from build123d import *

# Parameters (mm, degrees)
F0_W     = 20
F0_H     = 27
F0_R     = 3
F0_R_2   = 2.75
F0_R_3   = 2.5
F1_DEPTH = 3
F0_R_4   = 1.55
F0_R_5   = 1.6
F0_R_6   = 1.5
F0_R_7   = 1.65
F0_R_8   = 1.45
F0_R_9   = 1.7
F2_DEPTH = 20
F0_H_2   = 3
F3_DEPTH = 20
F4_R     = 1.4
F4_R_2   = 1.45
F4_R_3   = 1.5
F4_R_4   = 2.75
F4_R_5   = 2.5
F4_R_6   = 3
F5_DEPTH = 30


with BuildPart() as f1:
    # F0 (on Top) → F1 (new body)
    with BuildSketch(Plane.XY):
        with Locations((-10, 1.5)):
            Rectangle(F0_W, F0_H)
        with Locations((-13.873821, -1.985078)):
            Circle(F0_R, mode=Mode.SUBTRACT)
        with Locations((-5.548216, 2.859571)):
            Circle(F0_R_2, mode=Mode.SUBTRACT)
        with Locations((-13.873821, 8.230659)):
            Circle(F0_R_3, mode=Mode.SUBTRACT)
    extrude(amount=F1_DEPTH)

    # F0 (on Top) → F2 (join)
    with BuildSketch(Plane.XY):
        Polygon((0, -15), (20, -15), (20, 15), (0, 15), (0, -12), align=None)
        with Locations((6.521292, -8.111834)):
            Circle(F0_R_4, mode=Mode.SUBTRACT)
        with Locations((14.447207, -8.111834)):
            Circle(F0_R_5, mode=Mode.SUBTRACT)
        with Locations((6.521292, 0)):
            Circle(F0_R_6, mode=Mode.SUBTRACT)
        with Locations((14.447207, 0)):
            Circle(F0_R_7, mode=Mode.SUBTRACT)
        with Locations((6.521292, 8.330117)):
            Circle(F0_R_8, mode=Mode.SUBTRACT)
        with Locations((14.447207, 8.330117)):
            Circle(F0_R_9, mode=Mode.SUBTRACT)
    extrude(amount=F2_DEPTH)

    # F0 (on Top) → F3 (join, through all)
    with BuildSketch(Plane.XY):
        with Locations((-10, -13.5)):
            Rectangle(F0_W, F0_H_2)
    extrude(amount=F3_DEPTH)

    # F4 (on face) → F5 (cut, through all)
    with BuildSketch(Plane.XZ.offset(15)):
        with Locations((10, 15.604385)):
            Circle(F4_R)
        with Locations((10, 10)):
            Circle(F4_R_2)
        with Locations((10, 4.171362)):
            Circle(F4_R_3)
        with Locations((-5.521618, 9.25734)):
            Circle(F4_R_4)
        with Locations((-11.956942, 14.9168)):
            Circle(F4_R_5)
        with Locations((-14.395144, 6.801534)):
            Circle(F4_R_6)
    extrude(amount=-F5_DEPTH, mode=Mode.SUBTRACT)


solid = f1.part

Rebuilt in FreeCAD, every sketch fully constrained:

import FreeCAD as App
import Part
import Sketcher


def add_polygon(sketch, points):
    """Adds a closed chain of lines whose ends are joined by coincident constraints."""
    first, n = sketch.GeometryCount, len(points)
    for a, b in zip(points, points[1:] + points[:1]):
        sketch.addGeometry(Part.LineSegment(App.Vector(*a, 0), App.Vector(*b, 0)), False)
    for i in range(n):
        sketch.addConstraint(Sketcher.Constraint("Coincident", first + i, 2, first + (i + 1) % n, 1))

doc = App.newDocument("Part")
params = doc.addObject("Spreadsheet::Sheet", "Params")
for row, (alias, value) in enumerate([
    ("sketch1_diameter", "6 mm"),
    ("sketch1_diameter2", "5 mm"),
    ("sketch1_diameter3", "5.5 mm"),
    ("sketch1_width", "20 mm"),
    ("sketch1_height", "27 mm"),
    ("pad1_length", "3 mm"),
    ("sketch2_diameter", "3 mm"),
    ("sketch2_diameter2", "3.1 mm"),
    ("sketch2_diameter3", "3.2 mm"),
    ("sketch2_diameter4", "3.3 mm"),
    ("sketch2_diameter5", "2.9 mm"),
    ("pad2_length", "20 mm"),
    ("sketch3_width", "20 mm"),
    ("sketch3_height", "3 mm"),
    ("pad3_length", "20 mm"),
    ("sketch4_diameter", "3 mm"),
    ("sketch4_diameter2", "5 mm"),
    ("sketch4_diameter3", "6 mm"),
    ("sketch4_diameter4", "2.8 mm"),
    ("sketch4_diameter5", "2.9 mm"),
], start=1):
    params.set(f"A{row}", alias)
    params.set(f"B{row}", "=" + value)
    params.setAlias(f"B{row}", alias)

body = doc.addObject("PartDesign::Body", "Body")

# Sketch on XY plane
sketch1 = body.newObject("Sketcher::SketchObject", "Sketch")
sketch1.AttachmentSupport = (doc.getObject("XY_Plane"), [""])
sketch1.MapMode = "FlatFace"
add_polygon(sketch1, [(-20, 15), (-20, -12), (0, -12), (0, 15)])  # lines 0-3
sketch1.addGeometry(Part.Circle(App.Vector(-13.9, -2, 0), App.Vector(0, 0, 1), 3), False)  # 4
sketch1.addGeometry(Part.Circle(App.Vector(-5.5, 2.9, 0), App.Vector(0, 0, 1), 2.8), False)  # 5
sketch1.addGeometry(Part.Circle(App.Vector(-13.9, 8.2, 0), App.Vector(0, 0, 1), 2.5), False)  # 6
sketch1.addConstraint(Sketcher.Constraint("Vertical", 0))
sketch1.addConstraint(Sketcher.Constraint("Horizontal", 1))
sketch1.addConstraint(Sketcher.Constraint("Vertical", 2))
sketch1.addConstraint(Sketcher.Constraint("Horizontal", 3))
sketch1.addConstraint(Sketcher.Constraint("PointOnObject", 1, 2, -2))
sketch1.addConstraint(Sketcher.Constraint("Vertical", 4, 3, 6, 3))
sketch1.addConstraint(Sketcher.Constraint("Diameter", 4, 6.0))
sketch1.addConstraint(Sketcher.Constraint("Diameter", 6, 5.0))
sketch1.addConstraint(Sketcher.Constraint("Diameter", 5, 5.5))
sketch1.addConstraint(Sketcher.Constraint("DistanceX", 1, 1, 1, 2, 20.0))
sketch1.addConstraint(Sketcher.Constraint("DistanceY", 0, 2, 0, 1, 27.0))
sketch1.addConstraint(Sketcher.Constraint("DistanceY", 0, 2, -1, 1, 12.0))
sketch1.addConstraint(Sketcher.Constraint("DistanceX", 4, 3, -1, 1, 13.873821))
sketch1.addConstraint(Sketcher.Constraint("DistanceY", -1, 1, 5, 3, 2.859571))
sketch1.addConstraint(Sketcher.Constraint("DistanceY", -1, 1, 6, 3, 8.230659))
sketch1.addConstraint(Sketcher.Constraint("DistanceY", 4, 3, 5, 3, 4.844649))
sketch1.addConstraint(Sketcher.Constraint("DistanceX", 5, 3, -1, 1, 5.548216))
sketch1.setExpression("Constraints[10]", "Params.sketch1_diameter")
sketch1.setExpression("Constraints[11]", "Params.sketch1_diameter2")
sketch1.setExpression("Constraints[12]", "Params.sketch1_diameter3")
sketch1.setExpression("Constraints[13]", "Params.sketch1_width")
sketch1.setExpression("Constraints[14]", "Params.sketch1_height")
pad1 = body.newObject("PartDesign::Pad", "Pad")
pad1.Profile = sketch1
pad1.setExpression("Length", "Params.pad1_length")

# Sketch on XY plane
sketch2 = body.newObject("Sketcher::SketchObject", "Sketch001")
sketch2.AttachmentSupport = (doc.getObject("XY_Plane"), [""])
sketch2.MapMode = "FlatFace"
add_polygon(sketch2, [(0, -15), (20, -15), (20, 15), (0, 15)])  # lines 0-3
sketch2.addGeometry(Part.Circle(App.Vector(6.5, -8.1, 0), App.Vector(0, 0, 1), 1.6), False)  # 4
sketch2.addGeometry(Part.Circle(App.Vector(6.5, 0, 0), App.Vector(0, 0, 1), 1.5), False)  # 5
sketch2.addGeometry(Part.Circle(App.Vector(14.4, -8.1, 0), App.Vector(0, 0, 1), 1.6), False)  # 6
sketch2.addGeometry(Part.Circle(App.Vector(14.4, 0, 0), App.Vector(0, 0, 1), 1.6), False)  # 7
sketch2.addGeometry(Part.Circle(App.Vector(6.5, 8.3, 0), App.Vector(0, 0, 1), 1.4), False)  # 8
sketch2.addGeometry(Part.Circle(App.Vector(14.4, 8.3, 0), App.Vector(0, 0, 1), 1.7), False)  # 9
sketch2.addConstraint(Sketcher.Constraint("Horizontal", 0))
sketch2.addConstraint(Sketcher.Constraint("Vertical", 1))
sketch2.addConstraint(Sketcher.Constraint("Horizontal", 2))
sketch2.addConstraint(Sketcher.Constraint("Vertical", 3))
sketch2.addConstraint(Sketcher.Constraint("Symmetric", 2, 2, 3, 2, -1, 1))
sketch2.addConstraint(Sketcher.Constraint("PointOnObject", 5, 3, -1))
sketch2.addConstraint(Sketcher.Constraint("PointOnObject", 7, 3, -1))
sketch2.addConstraint(Sketcher.Constraint("Horizontal", 4, 3, 6, 3))
sketch2.addConstraint(Sketcher.Constraint("Horizontal", 8, 3, 9, 3))
sketch2.addConstraint(Sketcher.Constraint("Vertical", 4, 3, 5, 3))
sketch2.addConstraint(Sketcher.Constraint("Vertical", 6, 3, 7, 3))
sketch2.addConstraint(Sketcher.Constraint("Vertical", 5, 3, 8, 3))
sketch2.addConstraint(Sketcher.Constraint("Vertical", 7, 3, 9, 3))
sketch2.addConstraint(Sketcher.Constraint("Diameter", 5, 3.0))
sketch2.addConstraint(Sketcher.Constraint("Diameter", 4, 3.1))
sketch2.addConstraint(Sketcher.Constraint("Diameter", 6, 3.2))
sketch2.addConstraint(Sketcher.Constraint("Diameter", 7, 3.3))
sketch2.addConstraint(Sketcher.Constraint("Diameter", 8, 2.9))
sketch2.addConstraint(Sketcher.Constraint("Diameter", 9, 3.4))
sketch2.addConstraint(Sketcher.Constraint("DistanceX", 0, 1, 0, 2, 20.0))
sketch2.addConstraint(Sketcher.Constraint("DistanceY", 1, 1, 1, 2, 30.0))
sketch2.addConstraint(Sketcher.Constraint("DistanceY", 4, 3, 8, 3, 16.441951))
sketch2.addConstraint(Sketcher.Constraint("DistanceX", 4, 3, 0, 2, 13.478708))
sketch2.addConstraint(Sketcher.Constraint("DistanceY", 4, 3, -1, 1, 8.111834))
sketch2.addConstraint(Sketcher.Constraint("DistanceX", -1, 1, 6, 3, 14.447207))
sketch2.setExpression("Constraints[17]", "Params.sketch2_diameter")
sketch2.setExpression("Constraints[18]", "Params.sketch2_diameter2")
sketch2.setExpression("Constraints[19]", "Params.sketch2_diameter3")
sketch2.setExpression("Constraints[20]", "Params.sketch2_diameter4")
sketch2.setExpression("Constraints[21]", "Params.sketch2_diameter5")
pad2 = body.newObject("PartDesign::Pad", "Pad001")
pad2.Profile = sketch2
pad2.setExpression("Length", "Params.pad2_length")

# Sketch on XY plane
sketch3 = body.newObject("Sketcher::SketchObject", "Sketch002")
sketch3.AttachmentSupport = (doc.getObject("XY_Plane"), [""])
sketch3.MapMode = "FlatFace"
add_polygon(sketch3, [(-20, -12), (-20, -15), (0, -15), (0, -12)])  # lines 0-3
sketch3.addConstraint(Sketcher.Constraint("Vertical", 0))
sketch3.addConstraint(Sketcher.Constraint("Horizontal", 1))
sketch3.addConstraint(Sketcher.Constraint("Vertical", 2))
sketch3.addConstraint(Sketcher.Constraint("Horizontal", 3))
sketch3.addConstraint(Sketcher.Constraint("PointOnObject", 1, 2, -2))
sketch3.addConstraint(Sketcher.Constraint("DistanceX", 1, 1, 1, 2, 20.0))
sketch3.addConstraint(Sketcher.Constraint("DistanceY", 0, 2, 0, 1, 3.0))
sketch3.addConstraint(Sketcher.Constraint("DistanceY", 0, 2, -1, 1, 15.0))
sketch3.setExpression("Constraints[9]", "Params.sketch3_width")
sketch3.setExpression("Constraints[10]", "Params.sketch3_height")
pad3 = body.newObject("PartDesign::Pad", "Pad002")
pad3.Profile = sketch3
pad3.setExpression("Length", "Params.pad3_length")

# Sketch on XZ plane
sketch4 = body.newObject("Sketcher::SketchObject", "Sketch003")
sketch4.AttachmentSupport = (doc.getObject("XZ_Plane"), [""])
sketch4.MapMode = "FlatFace"
sketch4.AttachmentOffset = App.Placement(App.Vector(0, 0, 15), App.Rotation())
sketch4.addGeometry(Part.Circle(App.Vector(10, 15.6, 0), App.Vector(0, 0, 1), 1.4), False)
sketch4.addGeometry(Part.Circle(App.Vector(10, 10, 0), App.Vector(0, 0, 1), 1.4), False)
sketch4.addGeometry(Part.Circle(App.Vector(10, 4.2, 0), App.Vector(0, 0, 1), 1.5), False)
sketch4.addGeometry(Part.Circle(App.Vector(-5.5, 9.3, 0), App.Vector(0, 0, 1), 2.8), False)
sketch4.addGeometry(Part.Circle(App.Vector(-12, 14.9, 0), App.Vector(0, 0, 1), 2.5), False)
sketch4.addGeometry(Part.Circle(App.Vector(-14.4, 6.8, 0), App.Vector(0, 0, 1), 3), False)
sketch4.addConstraint(Sketcher.Constraint("Vertical", 0, 3, 1, 3))
sketch4.addConstraint(Sketcher.Constraint("Vertical", 1, 3, 2, 3))
sketch4.addConstraint(Sketcher.Constraint("Diameter", 2, 3.0))
sketch4.addConstraint(Sketcher.Constraint("Diameter", 4, 5.0))
sketch4.addConstraint(Sketcher.Constraint("Diameter", 5, 6.0))
sketch4.addConstraint(Sketcher.Constraint("Diameter", 0, 2.8))
sketch4.addConstraint(Sketcher.Constraint("Diameter", 1, 2.9))
sketch4.addConstraint(Sketcher.Constraint("Diameter", 3, 5.5))
sketch4.addConstraint(Sketcher.Constraint("DistanceX", -1, 1, 0, 3, 10.0))
sketch4.addConstraint(Sketcher.Constraint("DistanceY", -1, 1, 1, 3, 10.0))
sketch4.addConstraint(Sketcher.Constraint("DistanceY", -1, 1, 4, 3, 14.9168))
sketch4.addConstraint(Sketcher.Constraint("DistanceY", -1, 1, 3, 3, 9.25734))
sketch4.addConstraint(Sketcher.Constraint("DistanceX", 4, 3, 0, 3, 21.956942))
sketch4.addConstraint(Sketcher.Constraint("DistanceY", 2, 3, 5, 3, 2.630172))
sketch4.addConstraint(Sketcher.Constraint("DistanceY", 5, 3, 0, 3, 8.802851))
sketch4.addConstraint(Sketcher.Constraint("DistanceY", -1, 1, 0, 3, 15.604385))
sketch4.addConstraint(Sketcher.Constraint("DistanceX", 3, 3, -1, 1, 5.521618))
sketch4.addConstraint(Sketcher.Constraint("DistanceX", 5, 3, -1, 1, 14.395144))
sketch4.setExpression("Constraints[2]", "Params.sketch4_diameter")
sketch4.setExpression("Constraints[3]", "Params.sketch4_diameter2")
sketch4.setExpression("Constraints[4]", "Params.sketch4_diameter3")
sketch4.setExpression("Constraints[5]", "Params.sketch4_diameter4")
sketch4.setExpression("Constraints[6]", "Params.sketch4_diameter5")
pocket1 = body.newObject("PartDesign::Pocket", "Pocket")
pocket1.Profile = sketch4
pocket1.Type = "ThroughAll"

doc.recompute()
